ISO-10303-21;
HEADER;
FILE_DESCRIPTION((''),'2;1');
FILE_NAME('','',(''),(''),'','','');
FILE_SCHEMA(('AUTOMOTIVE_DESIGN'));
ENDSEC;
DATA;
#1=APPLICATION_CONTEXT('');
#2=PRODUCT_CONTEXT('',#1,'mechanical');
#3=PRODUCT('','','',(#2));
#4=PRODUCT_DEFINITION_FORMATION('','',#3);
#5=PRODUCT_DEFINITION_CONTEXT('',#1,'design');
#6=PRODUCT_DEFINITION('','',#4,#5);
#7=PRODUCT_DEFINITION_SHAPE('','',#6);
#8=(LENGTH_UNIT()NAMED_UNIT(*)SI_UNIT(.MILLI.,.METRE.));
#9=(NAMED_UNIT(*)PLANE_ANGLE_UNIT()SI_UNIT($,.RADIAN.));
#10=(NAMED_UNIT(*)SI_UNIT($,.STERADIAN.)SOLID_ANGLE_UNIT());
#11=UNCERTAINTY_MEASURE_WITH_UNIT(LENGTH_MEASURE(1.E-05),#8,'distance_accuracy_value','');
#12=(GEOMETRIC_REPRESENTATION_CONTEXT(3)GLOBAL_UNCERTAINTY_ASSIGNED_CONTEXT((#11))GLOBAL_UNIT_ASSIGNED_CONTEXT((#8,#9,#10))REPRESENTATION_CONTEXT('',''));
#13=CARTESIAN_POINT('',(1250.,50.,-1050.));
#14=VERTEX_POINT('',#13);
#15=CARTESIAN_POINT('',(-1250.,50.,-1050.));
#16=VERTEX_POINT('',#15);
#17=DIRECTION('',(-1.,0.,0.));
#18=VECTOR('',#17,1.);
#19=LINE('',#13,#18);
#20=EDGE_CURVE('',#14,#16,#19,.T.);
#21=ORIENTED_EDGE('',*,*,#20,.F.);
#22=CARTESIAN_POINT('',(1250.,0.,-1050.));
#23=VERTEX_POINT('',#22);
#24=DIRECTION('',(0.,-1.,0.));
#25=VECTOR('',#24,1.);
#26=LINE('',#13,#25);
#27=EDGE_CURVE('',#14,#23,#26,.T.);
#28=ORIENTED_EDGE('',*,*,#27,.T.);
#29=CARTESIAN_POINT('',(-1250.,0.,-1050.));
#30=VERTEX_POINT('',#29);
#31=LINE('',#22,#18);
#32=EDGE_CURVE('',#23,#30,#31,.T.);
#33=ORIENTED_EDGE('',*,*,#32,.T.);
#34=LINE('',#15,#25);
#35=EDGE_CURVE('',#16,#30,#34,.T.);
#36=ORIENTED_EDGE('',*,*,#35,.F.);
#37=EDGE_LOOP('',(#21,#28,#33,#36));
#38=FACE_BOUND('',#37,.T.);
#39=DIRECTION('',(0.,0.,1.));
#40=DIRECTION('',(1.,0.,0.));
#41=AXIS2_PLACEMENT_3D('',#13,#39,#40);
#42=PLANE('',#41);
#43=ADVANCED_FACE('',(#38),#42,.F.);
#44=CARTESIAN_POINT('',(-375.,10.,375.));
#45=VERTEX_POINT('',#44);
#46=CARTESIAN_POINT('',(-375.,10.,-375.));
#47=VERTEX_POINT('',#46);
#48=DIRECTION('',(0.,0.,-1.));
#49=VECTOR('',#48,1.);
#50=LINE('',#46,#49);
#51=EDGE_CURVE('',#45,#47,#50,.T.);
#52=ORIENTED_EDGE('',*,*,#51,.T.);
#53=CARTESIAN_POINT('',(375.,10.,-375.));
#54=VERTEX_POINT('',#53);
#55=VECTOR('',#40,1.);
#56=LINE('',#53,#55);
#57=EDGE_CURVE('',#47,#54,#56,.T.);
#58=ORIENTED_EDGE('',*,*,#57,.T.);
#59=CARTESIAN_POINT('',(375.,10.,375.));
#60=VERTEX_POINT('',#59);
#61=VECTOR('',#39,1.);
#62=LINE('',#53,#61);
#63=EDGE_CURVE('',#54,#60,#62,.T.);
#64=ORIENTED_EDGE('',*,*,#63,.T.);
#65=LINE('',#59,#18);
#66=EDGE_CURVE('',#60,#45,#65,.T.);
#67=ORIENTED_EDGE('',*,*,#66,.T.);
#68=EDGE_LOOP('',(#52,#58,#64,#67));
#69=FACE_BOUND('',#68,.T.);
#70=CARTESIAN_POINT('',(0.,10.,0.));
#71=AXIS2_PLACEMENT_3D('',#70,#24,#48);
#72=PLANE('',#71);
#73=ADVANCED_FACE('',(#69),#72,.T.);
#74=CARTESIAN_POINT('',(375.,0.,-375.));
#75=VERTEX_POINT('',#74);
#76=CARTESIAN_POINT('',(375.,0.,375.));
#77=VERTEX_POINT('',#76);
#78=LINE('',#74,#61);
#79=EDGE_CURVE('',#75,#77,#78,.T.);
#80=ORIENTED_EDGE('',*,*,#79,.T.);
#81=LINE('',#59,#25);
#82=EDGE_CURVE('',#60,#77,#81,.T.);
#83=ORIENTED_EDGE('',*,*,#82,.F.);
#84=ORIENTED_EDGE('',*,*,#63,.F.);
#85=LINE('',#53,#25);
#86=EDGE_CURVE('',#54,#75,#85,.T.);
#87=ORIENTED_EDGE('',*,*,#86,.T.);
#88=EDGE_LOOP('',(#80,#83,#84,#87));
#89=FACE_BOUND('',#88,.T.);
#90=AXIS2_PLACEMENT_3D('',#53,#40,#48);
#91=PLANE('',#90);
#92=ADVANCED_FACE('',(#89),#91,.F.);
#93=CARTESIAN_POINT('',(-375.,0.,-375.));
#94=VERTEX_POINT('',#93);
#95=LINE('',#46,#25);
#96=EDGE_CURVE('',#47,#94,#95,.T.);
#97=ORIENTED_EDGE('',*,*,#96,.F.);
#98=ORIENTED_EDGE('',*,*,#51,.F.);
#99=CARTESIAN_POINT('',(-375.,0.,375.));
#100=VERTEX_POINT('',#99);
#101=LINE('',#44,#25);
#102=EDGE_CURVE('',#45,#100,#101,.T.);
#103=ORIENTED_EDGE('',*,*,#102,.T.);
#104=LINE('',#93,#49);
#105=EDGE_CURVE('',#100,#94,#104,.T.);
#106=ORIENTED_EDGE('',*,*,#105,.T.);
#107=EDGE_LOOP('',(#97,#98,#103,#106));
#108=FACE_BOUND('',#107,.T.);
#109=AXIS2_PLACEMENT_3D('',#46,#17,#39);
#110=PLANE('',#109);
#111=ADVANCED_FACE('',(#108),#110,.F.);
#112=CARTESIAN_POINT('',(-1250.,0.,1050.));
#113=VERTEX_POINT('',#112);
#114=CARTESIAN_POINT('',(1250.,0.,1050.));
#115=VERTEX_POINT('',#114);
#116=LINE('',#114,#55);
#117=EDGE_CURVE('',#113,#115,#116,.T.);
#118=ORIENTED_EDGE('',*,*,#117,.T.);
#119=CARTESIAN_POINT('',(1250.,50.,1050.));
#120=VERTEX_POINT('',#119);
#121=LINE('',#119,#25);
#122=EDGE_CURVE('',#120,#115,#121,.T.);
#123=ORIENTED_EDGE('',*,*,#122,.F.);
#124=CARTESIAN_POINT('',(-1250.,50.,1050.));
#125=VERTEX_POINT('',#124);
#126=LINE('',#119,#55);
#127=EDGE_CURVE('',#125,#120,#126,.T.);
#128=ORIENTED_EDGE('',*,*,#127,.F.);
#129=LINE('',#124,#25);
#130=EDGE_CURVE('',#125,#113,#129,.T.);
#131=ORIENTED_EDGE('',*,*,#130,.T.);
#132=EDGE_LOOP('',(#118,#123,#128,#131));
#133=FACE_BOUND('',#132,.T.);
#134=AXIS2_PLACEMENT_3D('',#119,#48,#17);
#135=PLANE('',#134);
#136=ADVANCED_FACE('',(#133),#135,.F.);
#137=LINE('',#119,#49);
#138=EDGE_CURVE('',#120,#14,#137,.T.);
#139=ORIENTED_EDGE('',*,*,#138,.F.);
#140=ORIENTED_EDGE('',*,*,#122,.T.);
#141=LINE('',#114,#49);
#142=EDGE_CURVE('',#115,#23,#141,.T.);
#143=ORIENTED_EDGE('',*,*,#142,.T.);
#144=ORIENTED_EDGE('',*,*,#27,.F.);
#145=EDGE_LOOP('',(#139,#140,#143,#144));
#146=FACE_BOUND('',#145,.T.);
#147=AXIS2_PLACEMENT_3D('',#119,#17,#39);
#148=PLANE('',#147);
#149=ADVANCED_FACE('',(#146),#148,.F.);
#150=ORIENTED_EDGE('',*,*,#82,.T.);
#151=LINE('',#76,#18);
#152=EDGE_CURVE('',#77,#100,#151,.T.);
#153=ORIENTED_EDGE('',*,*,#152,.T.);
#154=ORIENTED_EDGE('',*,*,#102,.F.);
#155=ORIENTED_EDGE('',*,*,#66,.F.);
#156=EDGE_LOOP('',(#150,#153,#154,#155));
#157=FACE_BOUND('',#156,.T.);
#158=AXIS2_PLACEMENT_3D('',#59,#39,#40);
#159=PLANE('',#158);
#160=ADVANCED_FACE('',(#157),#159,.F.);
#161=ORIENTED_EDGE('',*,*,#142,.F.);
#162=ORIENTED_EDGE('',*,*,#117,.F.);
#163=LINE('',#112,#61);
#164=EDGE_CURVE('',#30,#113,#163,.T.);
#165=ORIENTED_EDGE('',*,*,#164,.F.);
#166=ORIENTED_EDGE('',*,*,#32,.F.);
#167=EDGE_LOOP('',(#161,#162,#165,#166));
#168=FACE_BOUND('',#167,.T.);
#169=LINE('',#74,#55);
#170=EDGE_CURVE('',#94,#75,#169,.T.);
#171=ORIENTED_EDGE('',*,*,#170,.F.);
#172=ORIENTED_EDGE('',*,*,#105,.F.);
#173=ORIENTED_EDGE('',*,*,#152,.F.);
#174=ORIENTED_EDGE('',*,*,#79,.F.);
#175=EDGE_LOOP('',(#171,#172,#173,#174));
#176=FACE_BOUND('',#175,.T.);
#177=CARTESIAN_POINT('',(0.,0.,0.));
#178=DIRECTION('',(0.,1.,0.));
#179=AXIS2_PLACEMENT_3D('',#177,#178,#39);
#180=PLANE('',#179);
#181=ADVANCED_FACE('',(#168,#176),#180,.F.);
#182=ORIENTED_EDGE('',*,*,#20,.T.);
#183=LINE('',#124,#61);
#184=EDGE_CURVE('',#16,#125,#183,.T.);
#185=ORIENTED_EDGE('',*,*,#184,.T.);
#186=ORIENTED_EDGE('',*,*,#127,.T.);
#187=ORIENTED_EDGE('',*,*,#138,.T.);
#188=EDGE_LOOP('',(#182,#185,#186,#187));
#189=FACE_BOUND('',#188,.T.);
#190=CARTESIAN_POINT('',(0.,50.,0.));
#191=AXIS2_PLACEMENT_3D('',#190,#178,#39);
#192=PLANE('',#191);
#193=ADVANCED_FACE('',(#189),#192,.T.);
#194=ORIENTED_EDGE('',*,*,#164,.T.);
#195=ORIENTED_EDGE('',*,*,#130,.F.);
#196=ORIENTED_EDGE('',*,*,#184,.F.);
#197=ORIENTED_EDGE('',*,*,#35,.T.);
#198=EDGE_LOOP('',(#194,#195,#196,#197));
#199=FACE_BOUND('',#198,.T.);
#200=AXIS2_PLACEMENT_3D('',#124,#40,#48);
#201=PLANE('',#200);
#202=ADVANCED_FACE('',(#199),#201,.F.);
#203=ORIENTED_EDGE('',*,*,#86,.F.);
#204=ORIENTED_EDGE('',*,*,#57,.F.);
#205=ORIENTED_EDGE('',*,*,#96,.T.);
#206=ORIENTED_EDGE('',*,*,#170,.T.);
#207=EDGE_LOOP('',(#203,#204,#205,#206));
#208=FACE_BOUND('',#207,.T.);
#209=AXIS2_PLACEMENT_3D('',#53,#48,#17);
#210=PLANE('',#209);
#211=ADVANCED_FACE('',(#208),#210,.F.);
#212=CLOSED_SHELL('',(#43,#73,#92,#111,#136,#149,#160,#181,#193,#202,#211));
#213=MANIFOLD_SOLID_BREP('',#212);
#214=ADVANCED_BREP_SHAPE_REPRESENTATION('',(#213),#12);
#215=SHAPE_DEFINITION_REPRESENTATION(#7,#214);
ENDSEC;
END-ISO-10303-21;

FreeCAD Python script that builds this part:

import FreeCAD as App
import Part
import Sketcher
from FreeCAD import Vector
Q = App.Units.Quantity


def add_polygon(sketch, points):
    """Adds a closed chain of lines whose ends are joined by coincident constraints."""
    first, n = sketch.GeometryCount, len(points)
    for a, b in zip(points, points[1:] + points[:1]):
        sketch.addGeometry(Part.LineSegment(App.Vector(*a, 0), App.Vector(*b, 0)), False)
    for i in range(n):
        sketch.addConstraint(Sketcher.Constraint("Coincident", first + i, 2, first + (i + 1) % n, 1))

doc = App.newDocument("Part")
body = doc.addObject("PartDesign::Body", "Body")

# Sketch on XZ plane
sketch1 = doc.addObject("Sketcher::SketchObject", "Sketch")
body.addObject(sketch1)
sketch1.AttachmentSupport = (doc.XZ_Plane, [""])
sketch1.MapMode = "FlatFace"
add_polygon(sketch1, [(-1250, -1050), (-1250, 1050), (1250, 1050), (1250, -1050)])  # lines 0-3
sketch1.addConstraint([
    Sketcher.Constraint("Vertical", 0),
    Sketcher.Constraint("Horizontal", 1),
    Sketcher.Constraint("Vertical", 2),
    Sketcher.Constraint("Horizontal", 3),
    Sketcher.Constraint("Symmetric", 0, 2, 2, 2, -1, 1),
    Sketcher.Constraint("DistanceX", 1, 1, 1, 2, Q("2500 mm")),
    Sketcher.Constraint("DistanceY", 0, 1, 0, 2, Q("2100 mm")),
])
pad1 = doc.addObject("PartDesign::Pad", "Pad")
body.addObject(pad1)
pad1.Profile = sketch1
pad1.Length = 50
pad1.Reversed = True

# Sketch on XZ plane
sketch2 = doc.addObject("Sketcher::SketchObject", "Sketch001")
body.addObject(sketch2)
sketch2.AttachmentSupport = (doc.XZ_Plane, [""])
sketch2.MapMode = "FlatFace"
add_polygon(sketch2, [(-375, 375), (-375, -375), (375, -375), (375, 375)])  # lines 0-3
sketch2.addConstraint([
    Sketcher.Constraint("Vertical", 0),
    Sketcher.Constraint("Horizontal", 1),
    Sketcher.Constraint("Vertical", 2),
    Sketcher.Constraint("Horizontal", 3),
    Sketcher.Constraint("Symmetric", 0, 2, 2, 2, -1, 1),
    Sketcher.Constraint("Equal", 3, 0),
    Sketcher.Constraint("DistanceX", 1, 1, 1, 2, Q("750 mm")),
])
pocket1 = doc.addObject("PartDesign::Pocket", "Pocket")
body.addObject(pocket1)
pocket1.Profile = sketch2
pocket1.Length = 10

doc.recompute()
